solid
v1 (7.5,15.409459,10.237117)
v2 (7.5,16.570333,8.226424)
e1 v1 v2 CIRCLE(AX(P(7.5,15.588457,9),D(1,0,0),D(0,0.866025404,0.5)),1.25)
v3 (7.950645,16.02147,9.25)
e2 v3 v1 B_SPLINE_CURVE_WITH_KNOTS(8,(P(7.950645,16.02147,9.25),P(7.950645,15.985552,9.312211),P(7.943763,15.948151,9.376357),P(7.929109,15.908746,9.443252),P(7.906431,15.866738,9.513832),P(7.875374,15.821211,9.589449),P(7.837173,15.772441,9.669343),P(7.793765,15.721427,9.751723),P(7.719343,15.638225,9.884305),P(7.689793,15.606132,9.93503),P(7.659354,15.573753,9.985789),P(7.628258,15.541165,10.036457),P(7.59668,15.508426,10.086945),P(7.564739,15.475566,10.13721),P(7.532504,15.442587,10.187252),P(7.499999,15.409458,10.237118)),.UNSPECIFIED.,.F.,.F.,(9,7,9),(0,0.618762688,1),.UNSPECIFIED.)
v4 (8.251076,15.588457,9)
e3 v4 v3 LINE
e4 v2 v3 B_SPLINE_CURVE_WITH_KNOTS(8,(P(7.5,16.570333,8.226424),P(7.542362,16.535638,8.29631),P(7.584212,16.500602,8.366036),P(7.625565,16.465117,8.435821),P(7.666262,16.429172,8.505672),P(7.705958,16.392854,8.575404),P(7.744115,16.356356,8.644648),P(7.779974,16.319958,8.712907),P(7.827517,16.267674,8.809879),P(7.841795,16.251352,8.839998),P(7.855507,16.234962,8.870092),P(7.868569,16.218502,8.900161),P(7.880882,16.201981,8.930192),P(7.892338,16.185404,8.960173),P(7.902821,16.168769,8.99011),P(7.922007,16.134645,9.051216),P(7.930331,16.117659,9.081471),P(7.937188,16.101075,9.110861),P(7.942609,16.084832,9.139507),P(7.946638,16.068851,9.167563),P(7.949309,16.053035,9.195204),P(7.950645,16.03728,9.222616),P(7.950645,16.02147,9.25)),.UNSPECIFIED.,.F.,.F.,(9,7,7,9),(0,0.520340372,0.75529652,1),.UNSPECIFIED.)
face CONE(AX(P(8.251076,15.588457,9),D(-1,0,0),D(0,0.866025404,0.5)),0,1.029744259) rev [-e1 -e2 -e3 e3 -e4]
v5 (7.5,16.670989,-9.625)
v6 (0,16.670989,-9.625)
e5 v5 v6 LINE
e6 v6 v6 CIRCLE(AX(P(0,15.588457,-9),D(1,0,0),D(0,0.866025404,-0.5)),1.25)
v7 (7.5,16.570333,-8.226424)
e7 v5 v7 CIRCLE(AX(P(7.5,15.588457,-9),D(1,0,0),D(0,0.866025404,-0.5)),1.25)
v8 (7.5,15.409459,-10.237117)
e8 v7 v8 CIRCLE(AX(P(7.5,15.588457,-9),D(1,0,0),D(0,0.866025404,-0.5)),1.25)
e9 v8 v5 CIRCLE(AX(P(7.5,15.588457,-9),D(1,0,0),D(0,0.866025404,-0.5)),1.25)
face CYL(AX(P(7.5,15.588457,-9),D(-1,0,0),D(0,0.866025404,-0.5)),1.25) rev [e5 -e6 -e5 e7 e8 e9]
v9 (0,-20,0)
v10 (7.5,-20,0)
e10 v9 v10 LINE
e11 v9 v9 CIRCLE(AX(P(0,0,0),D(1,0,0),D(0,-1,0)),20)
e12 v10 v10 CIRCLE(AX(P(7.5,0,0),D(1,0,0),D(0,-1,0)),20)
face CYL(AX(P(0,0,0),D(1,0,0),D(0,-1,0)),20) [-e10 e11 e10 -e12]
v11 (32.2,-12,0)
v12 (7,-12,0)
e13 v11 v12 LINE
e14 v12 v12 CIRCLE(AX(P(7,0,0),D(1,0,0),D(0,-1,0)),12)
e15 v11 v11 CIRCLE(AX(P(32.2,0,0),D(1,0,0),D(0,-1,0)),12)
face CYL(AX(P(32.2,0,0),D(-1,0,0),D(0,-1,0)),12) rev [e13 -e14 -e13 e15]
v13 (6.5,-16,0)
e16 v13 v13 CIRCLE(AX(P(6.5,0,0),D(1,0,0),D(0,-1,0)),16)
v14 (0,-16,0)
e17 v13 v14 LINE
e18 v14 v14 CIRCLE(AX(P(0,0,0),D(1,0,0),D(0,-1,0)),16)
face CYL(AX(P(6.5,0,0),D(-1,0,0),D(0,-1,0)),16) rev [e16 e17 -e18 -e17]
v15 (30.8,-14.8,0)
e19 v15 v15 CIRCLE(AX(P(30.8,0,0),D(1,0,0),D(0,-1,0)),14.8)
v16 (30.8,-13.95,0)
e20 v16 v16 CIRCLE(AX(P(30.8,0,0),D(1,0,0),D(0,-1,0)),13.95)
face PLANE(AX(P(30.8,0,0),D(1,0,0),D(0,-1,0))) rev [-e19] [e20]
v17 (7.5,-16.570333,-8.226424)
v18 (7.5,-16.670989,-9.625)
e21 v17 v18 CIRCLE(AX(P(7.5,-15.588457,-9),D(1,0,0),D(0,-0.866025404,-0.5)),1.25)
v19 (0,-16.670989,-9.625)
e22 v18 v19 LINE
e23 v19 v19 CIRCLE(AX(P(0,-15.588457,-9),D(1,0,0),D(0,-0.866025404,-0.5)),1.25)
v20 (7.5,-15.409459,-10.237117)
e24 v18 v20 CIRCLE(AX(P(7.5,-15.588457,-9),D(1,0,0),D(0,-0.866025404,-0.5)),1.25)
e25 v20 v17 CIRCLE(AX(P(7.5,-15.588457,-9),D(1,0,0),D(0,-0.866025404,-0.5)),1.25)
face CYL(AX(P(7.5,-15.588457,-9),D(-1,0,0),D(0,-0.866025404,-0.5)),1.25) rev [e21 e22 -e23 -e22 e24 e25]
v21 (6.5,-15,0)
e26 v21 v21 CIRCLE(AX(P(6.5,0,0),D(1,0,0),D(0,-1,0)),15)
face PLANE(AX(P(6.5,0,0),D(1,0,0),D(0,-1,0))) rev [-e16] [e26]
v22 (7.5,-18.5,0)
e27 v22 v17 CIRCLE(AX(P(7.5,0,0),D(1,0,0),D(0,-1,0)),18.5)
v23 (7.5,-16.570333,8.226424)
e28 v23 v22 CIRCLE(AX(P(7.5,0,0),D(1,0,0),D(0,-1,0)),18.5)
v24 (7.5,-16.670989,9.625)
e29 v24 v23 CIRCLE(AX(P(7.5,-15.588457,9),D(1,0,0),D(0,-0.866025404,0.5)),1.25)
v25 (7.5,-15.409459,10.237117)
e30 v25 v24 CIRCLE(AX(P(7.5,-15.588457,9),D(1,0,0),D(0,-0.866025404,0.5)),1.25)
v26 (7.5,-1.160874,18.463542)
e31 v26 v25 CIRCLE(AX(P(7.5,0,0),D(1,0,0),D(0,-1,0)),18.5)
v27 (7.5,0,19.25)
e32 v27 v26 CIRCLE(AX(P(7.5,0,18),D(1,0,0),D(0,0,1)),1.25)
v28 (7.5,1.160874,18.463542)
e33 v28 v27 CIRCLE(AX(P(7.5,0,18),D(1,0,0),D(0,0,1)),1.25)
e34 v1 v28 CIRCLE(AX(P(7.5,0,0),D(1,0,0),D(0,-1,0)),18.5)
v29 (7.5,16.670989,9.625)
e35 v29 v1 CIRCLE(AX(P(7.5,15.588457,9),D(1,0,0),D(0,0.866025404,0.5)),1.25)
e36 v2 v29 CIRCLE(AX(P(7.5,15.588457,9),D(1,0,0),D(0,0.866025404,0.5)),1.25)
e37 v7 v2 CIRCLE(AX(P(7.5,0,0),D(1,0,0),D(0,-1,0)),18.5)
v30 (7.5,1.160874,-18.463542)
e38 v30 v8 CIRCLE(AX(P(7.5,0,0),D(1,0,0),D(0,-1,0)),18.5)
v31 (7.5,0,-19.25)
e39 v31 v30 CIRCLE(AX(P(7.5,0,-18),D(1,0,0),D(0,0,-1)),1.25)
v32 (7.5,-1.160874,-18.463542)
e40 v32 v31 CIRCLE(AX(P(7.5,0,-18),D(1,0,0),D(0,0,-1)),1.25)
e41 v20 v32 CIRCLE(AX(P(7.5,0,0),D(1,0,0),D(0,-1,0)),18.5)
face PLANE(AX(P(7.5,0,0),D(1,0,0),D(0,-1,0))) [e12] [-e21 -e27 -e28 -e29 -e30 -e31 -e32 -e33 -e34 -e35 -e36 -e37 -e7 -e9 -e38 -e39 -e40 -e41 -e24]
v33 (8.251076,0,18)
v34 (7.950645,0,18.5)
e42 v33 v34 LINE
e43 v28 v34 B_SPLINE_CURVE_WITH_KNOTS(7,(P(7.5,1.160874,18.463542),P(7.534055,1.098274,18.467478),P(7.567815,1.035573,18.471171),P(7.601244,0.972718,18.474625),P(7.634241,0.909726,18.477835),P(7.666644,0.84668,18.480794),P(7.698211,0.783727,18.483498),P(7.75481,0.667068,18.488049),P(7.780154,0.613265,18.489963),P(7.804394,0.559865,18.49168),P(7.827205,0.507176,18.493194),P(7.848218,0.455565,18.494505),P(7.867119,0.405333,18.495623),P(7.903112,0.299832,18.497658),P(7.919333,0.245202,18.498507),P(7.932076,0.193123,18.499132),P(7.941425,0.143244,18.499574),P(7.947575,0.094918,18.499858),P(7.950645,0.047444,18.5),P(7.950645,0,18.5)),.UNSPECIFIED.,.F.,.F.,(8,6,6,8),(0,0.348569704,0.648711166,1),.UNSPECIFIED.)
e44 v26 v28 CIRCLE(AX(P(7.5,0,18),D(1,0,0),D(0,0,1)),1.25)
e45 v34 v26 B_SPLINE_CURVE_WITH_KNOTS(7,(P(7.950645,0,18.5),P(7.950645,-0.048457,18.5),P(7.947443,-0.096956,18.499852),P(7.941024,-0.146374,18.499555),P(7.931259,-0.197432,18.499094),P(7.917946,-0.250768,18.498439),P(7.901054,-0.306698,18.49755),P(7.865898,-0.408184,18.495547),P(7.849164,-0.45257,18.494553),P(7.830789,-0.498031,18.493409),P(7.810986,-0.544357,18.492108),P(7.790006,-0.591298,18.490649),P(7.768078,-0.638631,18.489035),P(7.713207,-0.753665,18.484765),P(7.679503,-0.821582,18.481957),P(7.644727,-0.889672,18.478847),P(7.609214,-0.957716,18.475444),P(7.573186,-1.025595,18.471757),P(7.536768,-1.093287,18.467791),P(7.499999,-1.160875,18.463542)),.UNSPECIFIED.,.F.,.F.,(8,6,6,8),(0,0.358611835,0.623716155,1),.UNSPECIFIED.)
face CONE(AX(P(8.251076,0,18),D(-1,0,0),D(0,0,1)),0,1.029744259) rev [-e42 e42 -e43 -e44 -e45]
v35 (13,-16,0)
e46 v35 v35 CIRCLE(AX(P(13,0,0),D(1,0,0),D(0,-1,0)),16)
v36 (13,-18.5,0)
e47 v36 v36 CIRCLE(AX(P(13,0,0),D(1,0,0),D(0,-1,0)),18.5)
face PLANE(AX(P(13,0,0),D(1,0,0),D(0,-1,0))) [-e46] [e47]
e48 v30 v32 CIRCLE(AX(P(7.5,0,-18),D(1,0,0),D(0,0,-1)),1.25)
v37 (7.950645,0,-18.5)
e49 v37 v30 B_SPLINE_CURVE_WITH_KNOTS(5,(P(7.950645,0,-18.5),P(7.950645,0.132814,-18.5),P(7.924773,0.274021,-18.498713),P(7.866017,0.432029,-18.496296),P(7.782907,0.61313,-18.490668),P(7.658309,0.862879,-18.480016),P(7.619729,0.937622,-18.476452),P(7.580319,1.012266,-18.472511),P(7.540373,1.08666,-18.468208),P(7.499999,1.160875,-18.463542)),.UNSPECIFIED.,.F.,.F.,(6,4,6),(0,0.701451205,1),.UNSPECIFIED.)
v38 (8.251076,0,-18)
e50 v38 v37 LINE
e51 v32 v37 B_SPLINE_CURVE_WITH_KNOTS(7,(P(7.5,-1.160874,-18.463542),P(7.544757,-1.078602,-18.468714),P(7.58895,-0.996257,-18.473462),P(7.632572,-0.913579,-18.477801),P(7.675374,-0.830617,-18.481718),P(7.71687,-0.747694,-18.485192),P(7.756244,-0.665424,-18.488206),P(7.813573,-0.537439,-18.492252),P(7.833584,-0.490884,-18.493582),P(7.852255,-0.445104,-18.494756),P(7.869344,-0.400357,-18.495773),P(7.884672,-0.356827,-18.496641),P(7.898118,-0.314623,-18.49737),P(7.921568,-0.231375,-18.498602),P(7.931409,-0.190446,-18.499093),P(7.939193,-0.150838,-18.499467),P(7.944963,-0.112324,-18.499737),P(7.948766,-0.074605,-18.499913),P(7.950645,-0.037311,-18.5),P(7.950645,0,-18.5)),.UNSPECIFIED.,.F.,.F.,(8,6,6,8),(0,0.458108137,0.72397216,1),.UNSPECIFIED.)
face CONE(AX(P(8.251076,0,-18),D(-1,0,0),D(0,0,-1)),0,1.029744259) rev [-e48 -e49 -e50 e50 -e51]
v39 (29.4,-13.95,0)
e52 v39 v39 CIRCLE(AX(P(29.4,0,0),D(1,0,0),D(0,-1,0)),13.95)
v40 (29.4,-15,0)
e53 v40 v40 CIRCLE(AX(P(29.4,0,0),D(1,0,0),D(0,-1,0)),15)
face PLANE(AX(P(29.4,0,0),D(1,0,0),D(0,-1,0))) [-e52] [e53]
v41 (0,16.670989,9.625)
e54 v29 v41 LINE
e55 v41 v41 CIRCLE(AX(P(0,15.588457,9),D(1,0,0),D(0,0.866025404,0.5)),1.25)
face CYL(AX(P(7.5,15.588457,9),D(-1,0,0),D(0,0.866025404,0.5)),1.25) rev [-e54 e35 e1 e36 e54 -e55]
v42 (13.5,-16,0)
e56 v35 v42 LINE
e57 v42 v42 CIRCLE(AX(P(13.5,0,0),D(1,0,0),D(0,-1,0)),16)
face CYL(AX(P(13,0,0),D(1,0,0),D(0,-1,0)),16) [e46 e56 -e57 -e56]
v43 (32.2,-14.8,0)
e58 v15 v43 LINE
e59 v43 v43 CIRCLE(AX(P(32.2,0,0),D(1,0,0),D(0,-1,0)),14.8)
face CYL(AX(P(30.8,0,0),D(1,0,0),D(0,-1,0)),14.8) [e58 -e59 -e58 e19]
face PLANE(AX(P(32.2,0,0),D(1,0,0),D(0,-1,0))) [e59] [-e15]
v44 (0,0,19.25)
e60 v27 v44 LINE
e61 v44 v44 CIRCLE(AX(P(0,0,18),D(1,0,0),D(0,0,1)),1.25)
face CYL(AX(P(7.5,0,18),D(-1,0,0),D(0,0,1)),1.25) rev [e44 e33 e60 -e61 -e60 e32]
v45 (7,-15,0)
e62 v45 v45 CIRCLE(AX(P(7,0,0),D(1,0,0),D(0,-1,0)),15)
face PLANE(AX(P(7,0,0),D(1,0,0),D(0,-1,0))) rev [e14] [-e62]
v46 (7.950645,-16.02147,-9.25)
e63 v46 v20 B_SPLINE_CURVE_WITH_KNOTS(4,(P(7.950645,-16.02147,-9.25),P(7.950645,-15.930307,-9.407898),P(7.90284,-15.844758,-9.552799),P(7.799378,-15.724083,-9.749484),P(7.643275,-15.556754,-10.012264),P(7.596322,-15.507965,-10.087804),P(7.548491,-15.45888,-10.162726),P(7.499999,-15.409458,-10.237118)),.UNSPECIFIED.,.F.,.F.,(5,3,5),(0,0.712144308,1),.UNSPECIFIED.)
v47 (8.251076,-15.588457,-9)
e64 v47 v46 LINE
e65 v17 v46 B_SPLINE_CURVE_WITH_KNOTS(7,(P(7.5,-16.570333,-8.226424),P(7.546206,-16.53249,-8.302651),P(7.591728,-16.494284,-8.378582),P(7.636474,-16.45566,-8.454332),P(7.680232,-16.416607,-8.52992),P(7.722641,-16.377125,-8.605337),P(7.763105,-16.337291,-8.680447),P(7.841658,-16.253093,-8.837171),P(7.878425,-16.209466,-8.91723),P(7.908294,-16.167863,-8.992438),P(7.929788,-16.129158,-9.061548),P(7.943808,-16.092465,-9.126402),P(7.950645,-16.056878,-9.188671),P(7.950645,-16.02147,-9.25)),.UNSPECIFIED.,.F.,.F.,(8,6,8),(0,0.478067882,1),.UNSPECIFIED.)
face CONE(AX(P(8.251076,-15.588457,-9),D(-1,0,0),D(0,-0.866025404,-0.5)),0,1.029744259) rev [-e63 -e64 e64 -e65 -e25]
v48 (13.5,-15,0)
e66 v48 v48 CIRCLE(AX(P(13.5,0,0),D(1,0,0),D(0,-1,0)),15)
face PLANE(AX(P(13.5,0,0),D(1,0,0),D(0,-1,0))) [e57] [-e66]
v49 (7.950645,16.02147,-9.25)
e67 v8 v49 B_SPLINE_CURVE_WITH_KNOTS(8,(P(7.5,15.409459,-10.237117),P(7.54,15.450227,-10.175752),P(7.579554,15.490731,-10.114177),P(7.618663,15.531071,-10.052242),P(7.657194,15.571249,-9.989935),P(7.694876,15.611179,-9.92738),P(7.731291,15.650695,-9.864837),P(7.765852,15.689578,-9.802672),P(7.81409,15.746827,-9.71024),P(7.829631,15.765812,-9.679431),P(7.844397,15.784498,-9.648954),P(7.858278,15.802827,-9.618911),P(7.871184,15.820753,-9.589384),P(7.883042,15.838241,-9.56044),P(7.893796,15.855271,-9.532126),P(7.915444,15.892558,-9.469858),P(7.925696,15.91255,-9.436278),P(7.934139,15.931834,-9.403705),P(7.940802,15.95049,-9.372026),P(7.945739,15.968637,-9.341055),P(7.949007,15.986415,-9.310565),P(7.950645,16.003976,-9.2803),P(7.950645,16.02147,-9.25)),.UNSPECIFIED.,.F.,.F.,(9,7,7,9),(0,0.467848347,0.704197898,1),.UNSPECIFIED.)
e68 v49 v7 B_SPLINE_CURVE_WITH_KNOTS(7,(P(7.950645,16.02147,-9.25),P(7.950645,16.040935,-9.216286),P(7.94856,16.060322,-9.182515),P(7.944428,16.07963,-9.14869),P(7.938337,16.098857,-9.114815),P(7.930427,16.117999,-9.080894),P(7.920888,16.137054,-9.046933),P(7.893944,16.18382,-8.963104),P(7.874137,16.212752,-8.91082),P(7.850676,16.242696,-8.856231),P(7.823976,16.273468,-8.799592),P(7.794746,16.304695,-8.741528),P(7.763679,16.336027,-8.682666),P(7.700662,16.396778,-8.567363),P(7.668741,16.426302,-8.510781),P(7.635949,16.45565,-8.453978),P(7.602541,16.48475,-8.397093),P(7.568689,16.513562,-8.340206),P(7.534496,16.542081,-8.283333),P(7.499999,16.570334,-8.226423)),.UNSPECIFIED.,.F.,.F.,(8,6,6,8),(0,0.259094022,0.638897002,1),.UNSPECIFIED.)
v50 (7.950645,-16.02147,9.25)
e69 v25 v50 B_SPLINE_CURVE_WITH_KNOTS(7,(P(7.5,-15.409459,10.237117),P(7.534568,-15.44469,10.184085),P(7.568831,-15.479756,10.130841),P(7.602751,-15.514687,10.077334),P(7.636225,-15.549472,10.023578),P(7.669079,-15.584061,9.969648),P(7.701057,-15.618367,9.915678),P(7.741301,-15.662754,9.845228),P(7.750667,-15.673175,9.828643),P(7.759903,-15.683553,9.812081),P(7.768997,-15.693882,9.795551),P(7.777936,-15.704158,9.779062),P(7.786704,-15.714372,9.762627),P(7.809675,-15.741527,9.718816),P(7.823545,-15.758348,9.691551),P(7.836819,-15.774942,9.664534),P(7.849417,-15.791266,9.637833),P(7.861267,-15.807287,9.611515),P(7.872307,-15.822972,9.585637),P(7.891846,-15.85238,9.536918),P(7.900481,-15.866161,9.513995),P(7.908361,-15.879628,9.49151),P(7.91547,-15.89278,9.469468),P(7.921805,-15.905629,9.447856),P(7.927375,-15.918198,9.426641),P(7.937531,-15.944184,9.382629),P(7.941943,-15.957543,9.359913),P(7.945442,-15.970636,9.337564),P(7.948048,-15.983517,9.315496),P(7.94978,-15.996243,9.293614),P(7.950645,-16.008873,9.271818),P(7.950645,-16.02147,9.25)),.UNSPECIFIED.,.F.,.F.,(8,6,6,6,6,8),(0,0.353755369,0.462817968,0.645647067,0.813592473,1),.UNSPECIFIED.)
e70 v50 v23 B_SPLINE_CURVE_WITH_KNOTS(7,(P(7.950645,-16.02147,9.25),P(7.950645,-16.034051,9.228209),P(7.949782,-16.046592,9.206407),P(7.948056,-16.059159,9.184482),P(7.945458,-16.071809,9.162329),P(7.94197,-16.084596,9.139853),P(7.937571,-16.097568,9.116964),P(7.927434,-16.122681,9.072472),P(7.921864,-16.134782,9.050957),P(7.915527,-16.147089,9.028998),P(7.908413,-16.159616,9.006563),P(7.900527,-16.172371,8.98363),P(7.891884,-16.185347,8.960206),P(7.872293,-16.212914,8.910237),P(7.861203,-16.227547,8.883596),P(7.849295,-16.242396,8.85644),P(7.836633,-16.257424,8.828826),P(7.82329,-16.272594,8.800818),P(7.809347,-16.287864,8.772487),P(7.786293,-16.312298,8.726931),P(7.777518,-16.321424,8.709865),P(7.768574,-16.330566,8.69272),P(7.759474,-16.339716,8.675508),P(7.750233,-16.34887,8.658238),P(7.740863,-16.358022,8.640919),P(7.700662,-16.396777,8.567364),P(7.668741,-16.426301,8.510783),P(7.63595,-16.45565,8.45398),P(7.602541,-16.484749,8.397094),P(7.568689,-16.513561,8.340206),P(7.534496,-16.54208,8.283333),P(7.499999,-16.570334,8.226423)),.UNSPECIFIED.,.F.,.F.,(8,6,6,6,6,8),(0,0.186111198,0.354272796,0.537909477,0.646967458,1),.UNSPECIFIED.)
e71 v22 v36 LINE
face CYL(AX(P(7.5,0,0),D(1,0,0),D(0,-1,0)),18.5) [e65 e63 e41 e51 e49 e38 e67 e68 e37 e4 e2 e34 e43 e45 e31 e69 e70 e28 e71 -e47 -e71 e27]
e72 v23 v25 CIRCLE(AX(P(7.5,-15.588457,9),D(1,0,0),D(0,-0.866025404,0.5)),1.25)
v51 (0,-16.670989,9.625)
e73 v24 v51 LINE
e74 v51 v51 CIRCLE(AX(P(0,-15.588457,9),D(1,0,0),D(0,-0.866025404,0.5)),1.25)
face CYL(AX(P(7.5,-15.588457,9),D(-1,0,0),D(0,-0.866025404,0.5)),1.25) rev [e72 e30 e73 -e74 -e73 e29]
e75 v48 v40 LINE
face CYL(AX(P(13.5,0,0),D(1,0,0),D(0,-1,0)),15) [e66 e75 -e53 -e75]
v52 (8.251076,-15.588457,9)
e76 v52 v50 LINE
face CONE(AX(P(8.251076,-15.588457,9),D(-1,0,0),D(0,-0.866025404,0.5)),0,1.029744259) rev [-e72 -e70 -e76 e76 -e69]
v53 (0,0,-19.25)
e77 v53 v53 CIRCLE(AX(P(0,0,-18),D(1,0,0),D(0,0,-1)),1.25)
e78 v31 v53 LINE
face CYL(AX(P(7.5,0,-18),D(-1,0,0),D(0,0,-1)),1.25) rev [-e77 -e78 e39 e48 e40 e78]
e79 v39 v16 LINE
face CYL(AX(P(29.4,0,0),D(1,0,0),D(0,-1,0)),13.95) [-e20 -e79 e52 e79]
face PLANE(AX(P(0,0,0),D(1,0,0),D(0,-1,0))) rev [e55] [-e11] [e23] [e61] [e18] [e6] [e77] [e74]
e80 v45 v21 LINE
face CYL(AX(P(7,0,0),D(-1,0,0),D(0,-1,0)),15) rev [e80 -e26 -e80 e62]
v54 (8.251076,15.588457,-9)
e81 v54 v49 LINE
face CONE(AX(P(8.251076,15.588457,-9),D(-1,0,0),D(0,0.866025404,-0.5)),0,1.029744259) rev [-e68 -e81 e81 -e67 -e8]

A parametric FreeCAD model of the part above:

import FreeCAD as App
import Part
import Sketcher
Q = App.Units.Quantity


def add_polygon(sketch, points):
    """Adds a closed chain of lines whose ends are joined by coincident constraints."""
    first, n = sketch.GeometryCount, len(points)
    for a, b in zip(points, points[1:] + points[:1]):
        sketch.addGeometry(Part.LineSegment(App.Vector(*a, 0), App.Vector(*b, 0)), False)
    for i in range(n):
        sketch.addConstraint(Sketcher.Constraint("Coincident", first + i, 2, first + (i + 1) % n, 1))

doc = App.newDocument("Part")
body = doc.addObject("PartDesign::Body", "Body")

sketch1 = body.newObject("Sketcher::SketchObject", "Sketch")
sketch1.AttachmentSupport = (doc.getObject("XY_Plane"), [""])
sketch1.MapMode = "FlatFace"
add_polygon(sketch1, [(0, 20), (0, 16), (6.5, 16), (6.5, 15), (7, 15), (7, 12), (32.2, 12), (32.2, 14.8), (30.8, 14.8), (30.8, 13.9), (29.4, 13.9), (29.4, 15), (13.5, 15), (13.5, 16), (13, 16), (13, 18.5), (7.5, 18.5), (7.5, 20)])
sketch1.addConstraint(Sketcher.Constraint("Vertical", 0))
sketch1.addConstraint(Sketcher.Constraint("Horizontal", 1))
sketch1.addConstraint(Sketcher.Constraint("Vertical", 2))
sketch1.addConstraint(Sketcher.Constraint("Horizontal", 3))
sketch1.addConstraint(Sketcher.Constraint("Vertical", 4))
sketch1.addConstraint(Sketcher.Constraint("Horizontal", 5))
sketch1.addConstraint(Sketcher.Constraint("Vertical", 6))
sketch1.addConstraint(Sketcher.Constraint("Horizontal", 7))
sketch1.addConstraint(Sketcher.Constraint("Vertical", 8))
sketch1.addConstraint(Sketcher.Constraint("Horizontal", 9))
sketch1.addConstraint(Sketcher.Constraint("Vertical", 10))
sketch1.addConstraint(Sketcher.Constraint("Horizontal", 11))
sketch1.addConstraint(Sketcher.Constraint("Vertical", 12))
sketch1.addConstraint(Sketcher.Constraint("Horizontal", 13))
sketch1.addConstraint(Sketcher.Constraint("Vertical", 14))
sketch1.addConstraint(Sketcher.Constraint("Horizontal", 15))
sketch1.addConstraint(Sketcher.Constraint("Vertical", 16))
sketch1.addConstraint(Sketcher.Constraint("Horizontal", 17))
sketch1.addConstraint(Sketcher.Constraint("PointOnObject", 0, 2, -2))
sketch1.addConstraint(Sketcher.Constraint("Horizontal", 3, 2, 10, 2))
sketch1.addConstraint(Sketcher.Constraint("Horizontal", 1, 2, 12, 2))
sketch1.addConstraint(Sketcher.Constraint("Equal", 7, 9))
sketch1.addConstraint(Sketcher.Constraint("Equal", 3, 13))
sketch1.addConstraint(Sketcher.Constraint("DistanceY", 0, 2, 0, 1, 4.0))
sketch1.addConstraint(Sketcher.Constraint("DistanceY", 2, 2, 2, 1, 1.0))
sketch1.addConstraint(Sketcher.Constraint("DistanceY", 4, 2, 4, 1, 3.0))
sketch1.addConstraint(Sketcher.Constraint("DistanceX", 1, 1, 1, 2, 6.5))
sketch1.addConstraint(Sketcher.Constraint("DistanceX", 3, 1, 3, 2, 0.5))
sketch1.addConstraint(Sketcher.Constraint("DistanceX", 5, 1, 5, 2, 25.2))
sketch1.addConstraint(Sketcher.Constraint("DistanceX", 7, 2, 7, 1, 1.4))
sketch1.addConstraint(Sketcher.Constraint("DistanceX", 11, 2, 11, 1, 15.9))
sketch1.addConstraint(Sketcher.Constraint("DistanceX", 15, 2, 15, 1, 5.5))
sketch1.addConstraint(Sketcher.Constraint("DistanceY", 6, 1, 6, 2, 2.8))
sketch1.addConstraint(Sketcher.Constraint("DistanceY", 14, 1, 14, 2, 2.5))
sketch1.addConstraint(Sketcher.Constraint("DistanceY", -1, 1, 0, 2, 16.0))
sketch1.addConstraint(Sketcher.Constraint("DistanceY", 8, 2, 8, 1, 0.85))
revolution = body.newObject("PartDesign::Revolution", "Revolution")
revolution.Profile = sketch1
revolution.ReferenceAxis = (sketch1, ["H_Axis"])
revolution.Angle = 360

sketch2 = body.newObject("Sketcher::SketchObject", "Sketch001")
sketch2.AttachmentSupport = (doc.getObject("XZ_Plane"), [""])
sketch2.MapMode = "FlatFace"
add_polygon(sketch2, [(8.3, 18), (0, 18), (0, 19.2), (7.5, 19.2)])
sketch2.addGeometry(Part.LineSegment(App.Vector(0, 18, 0), App.Vector(8.3, 18, 0)), True)
sketch2.addConstraint(Sketcher.Constraint("Horizontal", 0))
sketch2.addConstraint(Sketcher.Constraint("Vertical", 1))
sketch2.addConstraint(Sketcher.Constraint("Horizontal", 2))
sketch2.addConstraint(Sketcher.Constraint("Horizontal", 4))
sketch2.addConstraint(Sketcher.Constraint("Coincident", 4, 1, 0, 2))
sketch2.addConstraint(Sketcher.Constraint("PointOnObject", 0, 2, -2))
sketch2.addConstraint(Sketcher.Constraint("Equal", 0, 4))
sketch2.addConstraint(Sketcher.Constraint("Angle", 3, Q("-59 deg")))
sketch2.addConstraint(Sketcher.Constraint("DistanceX", 2, 1, 2, 2, 7.5))
sketch2.addConstraint(Sketcher.Constraint("DistanceY", -1, 1, 0, 2, 18.0))
sketch2.addConstraint(Sketcher.Constraint("DistanceY", 1, 1, 1, 2, 1.25))
groove = body.newObject("PartDesign::Groove", "Groove")
groove.Profile = sketch2
groove.ReferenceAxis = (sketch2, ["Axis0"])
groove.Angle = 360
doc.recompute()

polarpattern = body.newObject("PartDesign::PolarPattern", "PolarPattern")
polarpattern.Originals = [groove]
polarpattern.Axis = (doc.getObject("X_Axis"), [""])
polarpattern.Angle = 360
polarpattern.Occurrences = 6
body.Tip = polarpattern

doc.recompute()
